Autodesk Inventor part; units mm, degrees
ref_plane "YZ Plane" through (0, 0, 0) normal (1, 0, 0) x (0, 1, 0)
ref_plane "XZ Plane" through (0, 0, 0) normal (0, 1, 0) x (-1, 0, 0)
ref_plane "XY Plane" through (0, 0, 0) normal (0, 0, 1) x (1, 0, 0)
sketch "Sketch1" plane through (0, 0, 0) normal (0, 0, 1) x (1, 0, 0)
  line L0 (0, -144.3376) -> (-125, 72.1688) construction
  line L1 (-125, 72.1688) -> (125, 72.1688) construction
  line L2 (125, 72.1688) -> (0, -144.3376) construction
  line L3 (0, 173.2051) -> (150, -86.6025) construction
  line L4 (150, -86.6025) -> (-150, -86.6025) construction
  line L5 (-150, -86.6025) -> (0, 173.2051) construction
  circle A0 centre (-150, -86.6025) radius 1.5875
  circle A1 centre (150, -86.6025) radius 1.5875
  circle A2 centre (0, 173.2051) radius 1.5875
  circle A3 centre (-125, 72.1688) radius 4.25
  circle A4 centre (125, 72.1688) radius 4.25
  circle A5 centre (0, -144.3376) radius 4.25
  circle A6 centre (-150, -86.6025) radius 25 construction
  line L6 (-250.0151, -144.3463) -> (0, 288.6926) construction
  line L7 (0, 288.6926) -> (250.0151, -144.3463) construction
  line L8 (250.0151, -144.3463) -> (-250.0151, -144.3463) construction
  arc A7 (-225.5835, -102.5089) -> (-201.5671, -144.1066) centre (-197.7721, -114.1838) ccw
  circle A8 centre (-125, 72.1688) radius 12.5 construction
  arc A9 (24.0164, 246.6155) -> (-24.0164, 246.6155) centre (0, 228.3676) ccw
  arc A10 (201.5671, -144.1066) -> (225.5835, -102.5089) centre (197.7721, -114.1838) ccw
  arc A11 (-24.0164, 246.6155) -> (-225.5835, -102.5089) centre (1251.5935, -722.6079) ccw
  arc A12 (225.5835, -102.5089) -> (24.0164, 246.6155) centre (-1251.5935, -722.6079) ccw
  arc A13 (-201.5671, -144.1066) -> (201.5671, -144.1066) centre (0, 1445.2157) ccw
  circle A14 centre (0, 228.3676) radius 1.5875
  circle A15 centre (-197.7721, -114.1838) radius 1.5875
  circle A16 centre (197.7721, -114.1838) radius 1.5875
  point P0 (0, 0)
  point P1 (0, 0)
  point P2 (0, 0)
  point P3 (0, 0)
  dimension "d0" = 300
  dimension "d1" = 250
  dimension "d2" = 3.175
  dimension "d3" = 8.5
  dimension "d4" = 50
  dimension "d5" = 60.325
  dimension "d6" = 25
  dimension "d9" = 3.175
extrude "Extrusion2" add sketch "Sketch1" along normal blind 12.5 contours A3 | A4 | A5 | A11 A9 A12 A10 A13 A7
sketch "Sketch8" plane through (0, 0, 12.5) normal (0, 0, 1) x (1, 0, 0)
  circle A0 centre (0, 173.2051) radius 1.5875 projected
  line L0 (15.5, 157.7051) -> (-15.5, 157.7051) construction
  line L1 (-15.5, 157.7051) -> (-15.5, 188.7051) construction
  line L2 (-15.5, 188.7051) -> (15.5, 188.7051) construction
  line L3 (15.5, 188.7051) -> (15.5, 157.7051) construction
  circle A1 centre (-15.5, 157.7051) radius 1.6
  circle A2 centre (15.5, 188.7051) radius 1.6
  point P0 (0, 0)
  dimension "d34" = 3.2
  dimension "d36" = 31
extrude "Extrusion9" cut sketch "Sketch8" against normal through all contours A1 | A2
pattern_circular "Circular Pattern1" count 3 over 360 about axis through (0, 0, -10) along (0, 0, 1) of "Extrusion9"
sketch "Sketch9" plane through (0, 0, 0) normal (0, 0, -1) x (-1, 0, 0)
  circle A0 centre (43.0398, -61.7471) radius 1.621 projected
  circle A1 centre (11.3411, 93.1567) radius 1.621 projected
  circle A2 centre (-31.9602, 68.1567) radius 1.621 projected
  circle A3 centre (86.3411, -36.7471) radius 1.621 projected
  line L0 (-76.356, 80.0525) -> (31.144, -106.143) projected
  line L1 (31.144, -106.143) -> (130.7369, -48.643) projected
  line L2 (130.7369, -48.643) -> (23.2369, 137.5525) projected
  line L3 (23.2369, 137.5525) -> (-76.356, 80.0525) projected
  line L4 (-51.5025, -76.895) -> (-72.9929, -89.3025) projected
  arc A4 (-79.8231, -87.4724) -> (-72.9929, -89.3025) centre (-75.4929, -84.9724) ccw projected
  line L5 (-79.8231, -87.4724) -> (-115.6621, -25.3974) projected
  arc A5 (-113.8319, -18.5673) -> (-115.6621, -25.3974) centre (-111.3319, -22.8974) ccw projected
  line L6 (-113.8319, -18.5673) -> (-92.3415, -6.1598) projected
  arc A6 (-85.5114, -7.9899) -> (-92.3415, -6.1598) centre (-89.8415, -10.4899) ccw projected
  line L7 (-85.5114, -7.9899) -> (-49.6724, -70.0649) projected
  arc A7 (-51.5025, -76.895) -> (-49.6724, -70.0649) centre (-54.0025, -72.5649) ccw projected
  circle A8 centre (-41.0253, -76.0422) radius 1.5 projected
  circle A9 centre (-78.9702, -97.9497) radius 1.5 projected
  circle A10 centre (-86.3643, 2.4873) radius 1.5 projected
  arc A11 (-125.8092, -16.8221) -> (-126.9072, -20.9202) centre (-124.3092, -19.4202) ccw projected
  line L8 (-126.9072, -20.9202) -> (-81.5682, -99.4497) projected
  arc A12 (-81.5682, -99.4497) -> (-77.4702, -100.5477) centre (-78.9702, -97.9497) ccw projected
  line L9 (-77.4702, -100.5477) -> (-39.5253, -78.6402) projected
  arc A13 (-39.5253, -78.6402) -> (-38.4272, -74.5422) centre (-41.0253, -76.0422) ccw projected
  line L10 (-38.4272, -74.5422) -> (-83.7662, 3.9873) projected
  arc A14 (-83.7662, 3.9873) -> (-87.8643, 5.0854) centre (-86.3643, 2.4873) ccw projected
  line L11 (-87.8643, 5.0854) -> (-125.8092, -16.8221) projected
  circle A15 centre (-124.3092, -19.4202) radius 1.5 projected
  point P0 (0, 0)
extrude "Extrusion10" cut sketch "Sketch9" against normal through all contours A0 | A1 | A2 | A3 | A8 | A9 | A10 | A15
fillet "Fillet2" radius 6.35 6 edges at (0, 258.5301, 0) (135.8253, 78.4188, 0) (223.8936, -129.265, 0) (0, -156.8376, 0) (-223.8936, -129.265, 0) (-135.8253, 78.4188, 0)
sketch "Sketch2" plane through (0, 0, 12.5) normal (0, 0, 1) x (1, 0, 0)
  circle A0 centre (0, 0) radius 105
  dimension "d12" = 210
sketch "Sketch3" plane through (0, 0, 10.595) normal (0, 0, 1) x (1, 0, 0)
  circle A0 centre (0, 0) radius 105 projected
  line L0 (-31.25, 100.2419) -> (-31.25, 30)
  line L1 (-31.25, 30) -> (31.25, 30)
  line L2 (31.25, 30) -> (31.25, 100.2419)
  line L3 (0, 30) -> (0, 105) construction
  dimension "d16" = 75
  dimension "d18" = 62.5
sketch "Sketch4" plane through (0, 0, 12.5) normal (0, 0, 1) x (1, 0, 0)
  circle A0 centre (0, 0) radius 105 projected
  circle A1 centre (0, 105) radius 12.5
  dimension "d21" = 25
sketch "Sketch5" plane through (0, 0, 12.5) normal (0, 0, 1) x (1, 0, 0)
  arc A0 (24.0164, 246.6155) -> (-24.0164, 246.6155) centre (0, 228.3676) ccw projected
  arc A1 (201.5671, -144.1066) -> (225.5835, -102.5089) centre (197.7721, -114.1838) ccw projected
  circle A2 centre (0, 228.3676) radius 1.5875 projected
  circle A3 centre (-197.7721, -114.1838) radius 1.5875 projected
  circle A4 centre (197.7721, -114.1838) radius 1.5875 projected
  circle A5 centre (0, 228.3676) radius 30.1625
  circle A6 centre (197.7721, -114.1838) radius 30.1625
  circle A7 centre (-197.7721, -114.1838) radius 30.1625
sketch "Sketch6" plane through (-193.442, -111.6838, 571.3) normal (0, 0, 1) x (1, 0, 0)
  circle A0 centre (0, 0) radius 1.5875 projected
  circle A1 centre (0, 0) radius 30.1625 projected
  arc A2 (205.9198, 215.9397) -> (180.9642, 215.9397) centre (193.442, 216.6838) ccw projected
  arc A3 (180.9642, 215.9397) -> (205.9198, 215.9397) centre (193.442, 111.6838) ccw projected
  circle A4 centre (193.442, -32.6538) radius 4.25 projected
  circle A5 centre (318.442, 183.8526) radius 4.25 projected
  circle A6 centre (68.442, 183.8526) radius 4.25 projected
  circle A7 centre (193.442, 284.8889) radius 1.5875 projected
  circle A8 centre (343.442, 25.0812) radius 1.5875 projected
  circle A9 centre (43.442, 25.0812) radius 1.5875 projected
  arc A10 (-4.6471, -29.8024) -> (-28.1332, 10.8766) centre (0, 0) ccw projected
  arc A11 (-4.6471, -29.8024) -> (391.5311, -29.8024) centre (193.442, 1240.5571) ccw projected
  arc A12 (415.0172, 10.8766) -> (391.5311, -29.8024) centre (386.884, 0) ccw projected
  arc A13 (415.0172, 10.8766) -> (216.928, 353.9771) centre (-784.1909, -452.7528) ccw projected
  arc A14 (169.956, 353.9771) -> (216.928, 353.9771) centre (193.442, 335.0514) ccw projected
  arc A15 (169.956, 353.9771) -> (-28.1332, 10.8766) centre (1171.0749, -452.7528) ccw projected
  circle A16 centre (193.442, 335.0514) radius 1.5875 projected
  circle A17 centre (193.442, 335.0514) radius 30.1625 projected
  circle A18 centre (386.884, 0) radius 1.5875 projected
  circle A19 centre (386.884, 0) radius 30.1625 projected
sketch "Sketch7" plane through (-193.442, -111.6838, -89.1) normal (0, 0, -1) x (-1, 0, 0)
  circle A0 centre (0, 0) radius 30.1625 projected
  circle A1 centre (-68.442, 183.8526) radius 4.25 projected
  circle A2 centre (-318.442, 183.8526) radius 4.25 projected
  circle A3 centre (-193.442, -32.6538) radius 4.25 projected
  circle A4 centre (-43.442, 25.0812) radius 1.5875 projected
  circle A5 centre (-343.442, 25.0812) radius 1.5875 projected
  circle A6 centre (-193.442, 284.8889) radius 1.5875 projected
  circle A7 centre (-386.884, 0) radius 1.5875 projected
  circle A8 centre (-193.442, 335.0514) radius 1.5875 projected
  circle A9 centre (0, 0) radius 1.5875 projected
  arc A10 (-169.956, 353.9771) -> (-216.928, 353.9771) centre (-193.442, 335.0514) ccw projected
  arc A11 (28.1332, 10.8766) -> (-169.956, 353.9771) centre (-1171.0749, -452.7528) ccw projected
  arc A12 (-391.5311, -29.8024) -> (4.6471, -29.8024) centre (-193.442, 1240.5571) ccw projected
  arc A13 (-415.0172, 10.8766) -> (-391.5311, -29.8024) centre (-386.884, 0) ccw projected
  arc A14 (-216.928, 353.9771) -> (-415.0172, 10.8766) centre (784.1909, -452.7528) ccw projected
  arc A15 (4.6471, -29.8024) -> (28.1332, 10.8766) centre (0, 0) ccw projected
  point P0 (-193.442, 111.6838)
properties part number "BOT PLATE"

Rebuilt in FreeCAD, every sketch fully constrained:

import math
import FreeCAD as App
import Part
import Sketcher
from FreeCAD import Vector
Q = App.Units.Quantity


def edges_at(feature, points):
    """Names of the edges that pass closest to the given points."""
    edges = feature.Shape.Edges
    near = lambda p: min(range(len(edges)), key=lambda i: edges[i].distToShape(Part.Vertex(*p))[0])
    return sorted({f"Edge{near(p) + 1}" for p in points})

doc = App.newDocument("Part")
body = doc.addObject("PartDesign::Body", "Body")

# Sketch on XY plane
sketch1 = body.newObject("Sketcher::SketchObject", "Sketch")
sketch1.AttachmentSupport = (doc.getObject("XY_Plane"), [""])
sketch1.MapMode = "FlatFace"
sketch1.addGeometry([
    Part.ArcOfCircle(Part.Circle(Vector(1251.6, -722.6, 0), Vector(0, 0, 1), 1602.1), math.radians(142.77), math.radians(157.23)),  # 0
    Part.ArcOfCircle(Part.Circle(Vector(-197.8, -114.2, 0), Vector(0, 0, 1), 30.2), math.radians(157), math.radians(263)),  # 1
    Part.ArcOfCircle(Part.Circle(Vector(0, 1445.2, 0), Vector(0, 0, 1), 1602.1), math.radians(-97.23), math.radians(-82.77)),  # 2
    Part.ArcOfCircle(Part.Circle(Vector(197.8, -114.2, 0), Vector(0, 0, 1), 30.2), math.radians(-83), math.radians(23)),  # 3
    Part.ArcOfCircle(Part.Circle(Vector(-1251.6, -722.6, 0), Vector(0, 0, 1), 1602.1), math.radians(22.77), math.radians(37.23)),  # 4
    Part.ArcOfCircle(Part.Circle(Vector(0, 228.4, 0), Vector(0, 0, 1), 30.2), math.radians(37), math.radians(143)),  # 5
    Part.Circle(Vector(-197.8, -114.2, 0), Vector(0, 0, 1), 1.6),  # 6
    Part.Circle(Vector(-150, -86.6, 0), Vector(0, 0, 1), 1.6),  # 7
    Part.Circle(Vector(197.8, -114.2, 0), Vector(0, 0, 1), 1.6),  # 8
    Part.Circle(Vector(150, -86.6, 0), Vector(0, 0, 1), 1.6),  # 9
    Part.Circle(Vector(0, 228.4, 0), Vector(0, 0, 1), 1.6),  # 10
    Part.Circle(Vector(0, 173.2, 0), Vector(0, 0, 1), 1.6),  # 11
], False)
sketch1.addConstraint([
    Sketcher.Constraint("Tangent", 0, 2, 1, 1),
    Sketcher.Constraint("Tangent", 1, 2, 2, 1),
    Sketcher.Constraint("Tangent", 2, 2, 3, 1),
    Sketcher.Constraint("Tangent", 3, 2, 4, 1),
    Sketcher.Constraint("Tangent", 4, 2, 5, 1),
    Sketcher.Constraint("Tangent", 5, 2, 0, 1),
    Sketcher.Constraint("Coincident", 6, 3, 1, 3),
    Sketcher.Constraint("Coincident", 8, 3, 3, 3),
    Sketcher.Constraint("Coincident", 10, 3, 5, 3),
    Sketcher.Constraint("Equal", 0, 2),
    Sketcher.Constraint("Equal", 1, 3),
    Sketcher.Constraint("Equal", 2, 4),
    Sketcher.Constraint("Equal", 3, 5),
    Sketcher.Constraint("Equal", 6, 7),
    Sketcher.Constraint("Equal", 7, 8),
    Sketcher.Constraint("Equal", 8, 9),
    Sketcher.Constraint("Equal", 9, 10),
    Sketcher.Constraint("Equal", 10, 11),
    Sketcher.Constraint("Symmetric", 1, 3, 3, 3, -2),
    Sketcher.Constraint("Symmetric", 7, 3, 9, 3, -2),
    Sketcher.Constraint("PointOnObject", 5, 3, -2),
    Sketcher.Constraint("PointOnObject", 11, 3, -2),
    Sketcher.Constraint("Diameter", 6, Q("0.125 in")),
    Sketcher.Constraint("Radius", 1, Q("1.1875 in")),
    Sketcher.Constraint("Radius", 0, Q("1602.0533 mm")),
    Sketcher.Constraint("DistanceX", 7, 3, 9, 3, Q("300 mm")),
    Sketcher.Constraint("DistanceX", 1, 3, -1, 1, Q("7.7863 in")),
    Sketcher.Constraint("DistanceY", -1, 1, 11, 3, Q("6.8191 in")),
    Sketcher.Constraint("DistanceY", 1, 2, -1, 1, Q("5.6735 in")),
    Sketcher.Constraint("DistanceY", 0, 3, 1, 3, Q("23.9537 in")),
    Sketcher.Constraint("DistanceY", 7, 3, 5, 3, Q("12.4004 in")),
])
pad1 = body.newObject("PartDesign::Pad", "Pad")
pad1.Profile = sketch1
pad1.Length = 12.5

# Sketch on XY plane
sketch2 = body.newObject("Sketcher::SketchObject", "Sketch001")
sketch2.AttachmentSupport = (doc.getObject("XY_Plane"), [""])
sketch2.MapMode = "FlatFace"
sketch2.AttachmentOffset = App.Placement(Vector(0, 0, 12.5), App.Rotation())
sketch2.addGeometry([
    Part.Circle(Vector(-15.5, 157.7, 0), Vector(0, 0, 1), 1.6),
    Part.Circle(Vector(15.5, 188.7, 0), Vector(0, 0, 1), 1.6),
], False)
sketch2.addConstraint([
    Sketcher.Constraint("Equal", 0, 1),
    Sketcher.Constraint("Diameter", 0, Q("3.2 mm")),
    Sketcher.Constraint("DistanceX", 0, 3, 1, 3, Q("31 mm")),
    Sketcher.Constraint("DistanceY", 0, 3, 1, 3, Q("31 mm")),
    Sketcher.Constraint("DistanceX", 0, 3, -1, 1, Q("15.5 mm")),
    Sketcher.Constraint("DistanceY", -1, 1, 0, 3, Q("157.705 mm")),
])
pocket1 = body.newObject("PartDesign::Pocket", "Pocket")
pocket1.Profile = sketch2
pocket1.Type = "ThroughAll"
doc.recompute()

polarpattern = body.newObject("PartDesign::PolarPattern", "PolarPattern")
polarpattern.Originals = [pocket1]
polarpattern.Axis = (doc.getObject("Z_Axis"), [""])
polarpattern.Angle = 360
polarpattern.Occurrences = 3
body.Tip = polarpattern

# Sketch on XY plane
sketch3 = body.newObject("Sketcher::SketchObject", "Sketch002")
sketch3.AttachmentSupport = (doc.getObject("XY_Plane"), [""])
sketch3.MapMode = "FlatFace"
sketch3.addGeometry([
    Part.Circle(Vector(-43, -61.7, 0), Vector(0, 0, 1), 1.6),  # 0
    Part.Circle(Vector(-11.3, 93.2, 0), Vector(0, 0, 1), 1.6),  # 1
    Part.Circle(Vector(32, 68.2, 0), Vector(0, 0, 1), 1.6),  # 2
    Part.Circle(Vector(-86.3, -36.7, 0), Vector(0, 0, 1), 1.6),  # 3
    Part.Circle(Vector(41, -76, 0), Vector(0, 0, 1), 1.5),  # 4
    Part.Circle(Vector(79, -97.9, 0), Vector(0, 0, 1), 1.5),  # 5
    Part.Circle(Vector(86.4, 2.5, 0), Vector(0, 0, 1), 1.5),  # 6
    Part.Circle(Vector(124.3, -19.4, 0), Vector(0, 0, 1), 1.5),  # 7
], False)
sketch3.addConstraint([
    Sketcher.Constraint("Equal", 0, 1),
    Sketcher.Constraint("Equal", 1, 2),
    Sketcher.Constraint("Equal", 2, 3),
    Sketcher.Constraint("Equal", 4, 5),
    Sketcher.Constraint("Equal", 5, 6),
    Sketcher.Constraint("Equal", 6, 7),
    Sketcher.Constraint("Diameter", 4, Q("0.1181 in")),
    Sketcher.Constraint("Diameter", 0, Q("3.242 mm")),
    Sketcher.Constraint("DistanceY", 0, 3, -1, 1, Q("2.431 in")),
    Sketcher.Constraint("DistanceX", 4, 3, 6, 3, Q("1.785 in")),
    Sketcher.Constraint("DistanceX", 5, 3, 7, 3, Q("1.785 in")),
    Sketcher.Constraint("DistanceX", 1, 3, -1, 1, Q("0.4465 in")),
    Sketcher.Constraint("DistanceY", 4, 3, 0, 3, Q("0.5628 in")),
    Sketcher.Constraint("DistanceX", 2, 3, 4, 3, Q("0.3569 in")),
    Sketcher.Constraint("DistanceX", 4, 3, 5, 3, Q("1.4939 in")),
    Sketcher.Constraint("DistanceY", 5, 3, 4, 3, Q("0.8625 in")),
    Sketcher.Constraint("DistanceY", 6, 3, 2, 3, Q("2.5854 in")),
    Sketcher.Constraint("DistanceY", 7, 3, 6, 3, Q("0.8625 in")),
    Sketcher.Constraint("DistanceX", 0, 3, -1, 1, Q("43.0398 mm")),
    Sketcher.Constraint("DistanceY", -1, 1, 1, 3, Q("93.1567 mm")),
    Sketcher.Constraint("DistanceX", -1, 1, 2, 3, Q("31.9602 mm")),
    Sketcher.Constraint("DistanceY", -1, 1, 2, 3, Q("68.1567 mm")),
    Sketcher.Constraint("DistanceX", 3, 3, -1, 1, Q("86.341 mm")),
    Sketcher.Constraint("DistanceY", 3, 3, -1, 1, Q("36.747 mm")),
])
pocket2 = body.newObject("PartDesign::Pocket", "Pocket001")
pocket2.Profile = sketch3
pocket2.Type = "ThroughAll"
pocket2.Reversed = True
doc.recompute()

fillet = body.newObject("PartDesign::Fillet", "Fillet")
fillet.Base = (pocket2, edges_at(pocket2, [
    (0, 258.53, 0),
    (135.825, 78.419, 0),
    (223.894, -129.265, 0),
    (0, -156.838, 0),
    (-223.894, -129.265, 0),
    (-135.825, 78.419, 0),
]))
fillet.Radius = Q("0.25 in")

doc.recompute()
